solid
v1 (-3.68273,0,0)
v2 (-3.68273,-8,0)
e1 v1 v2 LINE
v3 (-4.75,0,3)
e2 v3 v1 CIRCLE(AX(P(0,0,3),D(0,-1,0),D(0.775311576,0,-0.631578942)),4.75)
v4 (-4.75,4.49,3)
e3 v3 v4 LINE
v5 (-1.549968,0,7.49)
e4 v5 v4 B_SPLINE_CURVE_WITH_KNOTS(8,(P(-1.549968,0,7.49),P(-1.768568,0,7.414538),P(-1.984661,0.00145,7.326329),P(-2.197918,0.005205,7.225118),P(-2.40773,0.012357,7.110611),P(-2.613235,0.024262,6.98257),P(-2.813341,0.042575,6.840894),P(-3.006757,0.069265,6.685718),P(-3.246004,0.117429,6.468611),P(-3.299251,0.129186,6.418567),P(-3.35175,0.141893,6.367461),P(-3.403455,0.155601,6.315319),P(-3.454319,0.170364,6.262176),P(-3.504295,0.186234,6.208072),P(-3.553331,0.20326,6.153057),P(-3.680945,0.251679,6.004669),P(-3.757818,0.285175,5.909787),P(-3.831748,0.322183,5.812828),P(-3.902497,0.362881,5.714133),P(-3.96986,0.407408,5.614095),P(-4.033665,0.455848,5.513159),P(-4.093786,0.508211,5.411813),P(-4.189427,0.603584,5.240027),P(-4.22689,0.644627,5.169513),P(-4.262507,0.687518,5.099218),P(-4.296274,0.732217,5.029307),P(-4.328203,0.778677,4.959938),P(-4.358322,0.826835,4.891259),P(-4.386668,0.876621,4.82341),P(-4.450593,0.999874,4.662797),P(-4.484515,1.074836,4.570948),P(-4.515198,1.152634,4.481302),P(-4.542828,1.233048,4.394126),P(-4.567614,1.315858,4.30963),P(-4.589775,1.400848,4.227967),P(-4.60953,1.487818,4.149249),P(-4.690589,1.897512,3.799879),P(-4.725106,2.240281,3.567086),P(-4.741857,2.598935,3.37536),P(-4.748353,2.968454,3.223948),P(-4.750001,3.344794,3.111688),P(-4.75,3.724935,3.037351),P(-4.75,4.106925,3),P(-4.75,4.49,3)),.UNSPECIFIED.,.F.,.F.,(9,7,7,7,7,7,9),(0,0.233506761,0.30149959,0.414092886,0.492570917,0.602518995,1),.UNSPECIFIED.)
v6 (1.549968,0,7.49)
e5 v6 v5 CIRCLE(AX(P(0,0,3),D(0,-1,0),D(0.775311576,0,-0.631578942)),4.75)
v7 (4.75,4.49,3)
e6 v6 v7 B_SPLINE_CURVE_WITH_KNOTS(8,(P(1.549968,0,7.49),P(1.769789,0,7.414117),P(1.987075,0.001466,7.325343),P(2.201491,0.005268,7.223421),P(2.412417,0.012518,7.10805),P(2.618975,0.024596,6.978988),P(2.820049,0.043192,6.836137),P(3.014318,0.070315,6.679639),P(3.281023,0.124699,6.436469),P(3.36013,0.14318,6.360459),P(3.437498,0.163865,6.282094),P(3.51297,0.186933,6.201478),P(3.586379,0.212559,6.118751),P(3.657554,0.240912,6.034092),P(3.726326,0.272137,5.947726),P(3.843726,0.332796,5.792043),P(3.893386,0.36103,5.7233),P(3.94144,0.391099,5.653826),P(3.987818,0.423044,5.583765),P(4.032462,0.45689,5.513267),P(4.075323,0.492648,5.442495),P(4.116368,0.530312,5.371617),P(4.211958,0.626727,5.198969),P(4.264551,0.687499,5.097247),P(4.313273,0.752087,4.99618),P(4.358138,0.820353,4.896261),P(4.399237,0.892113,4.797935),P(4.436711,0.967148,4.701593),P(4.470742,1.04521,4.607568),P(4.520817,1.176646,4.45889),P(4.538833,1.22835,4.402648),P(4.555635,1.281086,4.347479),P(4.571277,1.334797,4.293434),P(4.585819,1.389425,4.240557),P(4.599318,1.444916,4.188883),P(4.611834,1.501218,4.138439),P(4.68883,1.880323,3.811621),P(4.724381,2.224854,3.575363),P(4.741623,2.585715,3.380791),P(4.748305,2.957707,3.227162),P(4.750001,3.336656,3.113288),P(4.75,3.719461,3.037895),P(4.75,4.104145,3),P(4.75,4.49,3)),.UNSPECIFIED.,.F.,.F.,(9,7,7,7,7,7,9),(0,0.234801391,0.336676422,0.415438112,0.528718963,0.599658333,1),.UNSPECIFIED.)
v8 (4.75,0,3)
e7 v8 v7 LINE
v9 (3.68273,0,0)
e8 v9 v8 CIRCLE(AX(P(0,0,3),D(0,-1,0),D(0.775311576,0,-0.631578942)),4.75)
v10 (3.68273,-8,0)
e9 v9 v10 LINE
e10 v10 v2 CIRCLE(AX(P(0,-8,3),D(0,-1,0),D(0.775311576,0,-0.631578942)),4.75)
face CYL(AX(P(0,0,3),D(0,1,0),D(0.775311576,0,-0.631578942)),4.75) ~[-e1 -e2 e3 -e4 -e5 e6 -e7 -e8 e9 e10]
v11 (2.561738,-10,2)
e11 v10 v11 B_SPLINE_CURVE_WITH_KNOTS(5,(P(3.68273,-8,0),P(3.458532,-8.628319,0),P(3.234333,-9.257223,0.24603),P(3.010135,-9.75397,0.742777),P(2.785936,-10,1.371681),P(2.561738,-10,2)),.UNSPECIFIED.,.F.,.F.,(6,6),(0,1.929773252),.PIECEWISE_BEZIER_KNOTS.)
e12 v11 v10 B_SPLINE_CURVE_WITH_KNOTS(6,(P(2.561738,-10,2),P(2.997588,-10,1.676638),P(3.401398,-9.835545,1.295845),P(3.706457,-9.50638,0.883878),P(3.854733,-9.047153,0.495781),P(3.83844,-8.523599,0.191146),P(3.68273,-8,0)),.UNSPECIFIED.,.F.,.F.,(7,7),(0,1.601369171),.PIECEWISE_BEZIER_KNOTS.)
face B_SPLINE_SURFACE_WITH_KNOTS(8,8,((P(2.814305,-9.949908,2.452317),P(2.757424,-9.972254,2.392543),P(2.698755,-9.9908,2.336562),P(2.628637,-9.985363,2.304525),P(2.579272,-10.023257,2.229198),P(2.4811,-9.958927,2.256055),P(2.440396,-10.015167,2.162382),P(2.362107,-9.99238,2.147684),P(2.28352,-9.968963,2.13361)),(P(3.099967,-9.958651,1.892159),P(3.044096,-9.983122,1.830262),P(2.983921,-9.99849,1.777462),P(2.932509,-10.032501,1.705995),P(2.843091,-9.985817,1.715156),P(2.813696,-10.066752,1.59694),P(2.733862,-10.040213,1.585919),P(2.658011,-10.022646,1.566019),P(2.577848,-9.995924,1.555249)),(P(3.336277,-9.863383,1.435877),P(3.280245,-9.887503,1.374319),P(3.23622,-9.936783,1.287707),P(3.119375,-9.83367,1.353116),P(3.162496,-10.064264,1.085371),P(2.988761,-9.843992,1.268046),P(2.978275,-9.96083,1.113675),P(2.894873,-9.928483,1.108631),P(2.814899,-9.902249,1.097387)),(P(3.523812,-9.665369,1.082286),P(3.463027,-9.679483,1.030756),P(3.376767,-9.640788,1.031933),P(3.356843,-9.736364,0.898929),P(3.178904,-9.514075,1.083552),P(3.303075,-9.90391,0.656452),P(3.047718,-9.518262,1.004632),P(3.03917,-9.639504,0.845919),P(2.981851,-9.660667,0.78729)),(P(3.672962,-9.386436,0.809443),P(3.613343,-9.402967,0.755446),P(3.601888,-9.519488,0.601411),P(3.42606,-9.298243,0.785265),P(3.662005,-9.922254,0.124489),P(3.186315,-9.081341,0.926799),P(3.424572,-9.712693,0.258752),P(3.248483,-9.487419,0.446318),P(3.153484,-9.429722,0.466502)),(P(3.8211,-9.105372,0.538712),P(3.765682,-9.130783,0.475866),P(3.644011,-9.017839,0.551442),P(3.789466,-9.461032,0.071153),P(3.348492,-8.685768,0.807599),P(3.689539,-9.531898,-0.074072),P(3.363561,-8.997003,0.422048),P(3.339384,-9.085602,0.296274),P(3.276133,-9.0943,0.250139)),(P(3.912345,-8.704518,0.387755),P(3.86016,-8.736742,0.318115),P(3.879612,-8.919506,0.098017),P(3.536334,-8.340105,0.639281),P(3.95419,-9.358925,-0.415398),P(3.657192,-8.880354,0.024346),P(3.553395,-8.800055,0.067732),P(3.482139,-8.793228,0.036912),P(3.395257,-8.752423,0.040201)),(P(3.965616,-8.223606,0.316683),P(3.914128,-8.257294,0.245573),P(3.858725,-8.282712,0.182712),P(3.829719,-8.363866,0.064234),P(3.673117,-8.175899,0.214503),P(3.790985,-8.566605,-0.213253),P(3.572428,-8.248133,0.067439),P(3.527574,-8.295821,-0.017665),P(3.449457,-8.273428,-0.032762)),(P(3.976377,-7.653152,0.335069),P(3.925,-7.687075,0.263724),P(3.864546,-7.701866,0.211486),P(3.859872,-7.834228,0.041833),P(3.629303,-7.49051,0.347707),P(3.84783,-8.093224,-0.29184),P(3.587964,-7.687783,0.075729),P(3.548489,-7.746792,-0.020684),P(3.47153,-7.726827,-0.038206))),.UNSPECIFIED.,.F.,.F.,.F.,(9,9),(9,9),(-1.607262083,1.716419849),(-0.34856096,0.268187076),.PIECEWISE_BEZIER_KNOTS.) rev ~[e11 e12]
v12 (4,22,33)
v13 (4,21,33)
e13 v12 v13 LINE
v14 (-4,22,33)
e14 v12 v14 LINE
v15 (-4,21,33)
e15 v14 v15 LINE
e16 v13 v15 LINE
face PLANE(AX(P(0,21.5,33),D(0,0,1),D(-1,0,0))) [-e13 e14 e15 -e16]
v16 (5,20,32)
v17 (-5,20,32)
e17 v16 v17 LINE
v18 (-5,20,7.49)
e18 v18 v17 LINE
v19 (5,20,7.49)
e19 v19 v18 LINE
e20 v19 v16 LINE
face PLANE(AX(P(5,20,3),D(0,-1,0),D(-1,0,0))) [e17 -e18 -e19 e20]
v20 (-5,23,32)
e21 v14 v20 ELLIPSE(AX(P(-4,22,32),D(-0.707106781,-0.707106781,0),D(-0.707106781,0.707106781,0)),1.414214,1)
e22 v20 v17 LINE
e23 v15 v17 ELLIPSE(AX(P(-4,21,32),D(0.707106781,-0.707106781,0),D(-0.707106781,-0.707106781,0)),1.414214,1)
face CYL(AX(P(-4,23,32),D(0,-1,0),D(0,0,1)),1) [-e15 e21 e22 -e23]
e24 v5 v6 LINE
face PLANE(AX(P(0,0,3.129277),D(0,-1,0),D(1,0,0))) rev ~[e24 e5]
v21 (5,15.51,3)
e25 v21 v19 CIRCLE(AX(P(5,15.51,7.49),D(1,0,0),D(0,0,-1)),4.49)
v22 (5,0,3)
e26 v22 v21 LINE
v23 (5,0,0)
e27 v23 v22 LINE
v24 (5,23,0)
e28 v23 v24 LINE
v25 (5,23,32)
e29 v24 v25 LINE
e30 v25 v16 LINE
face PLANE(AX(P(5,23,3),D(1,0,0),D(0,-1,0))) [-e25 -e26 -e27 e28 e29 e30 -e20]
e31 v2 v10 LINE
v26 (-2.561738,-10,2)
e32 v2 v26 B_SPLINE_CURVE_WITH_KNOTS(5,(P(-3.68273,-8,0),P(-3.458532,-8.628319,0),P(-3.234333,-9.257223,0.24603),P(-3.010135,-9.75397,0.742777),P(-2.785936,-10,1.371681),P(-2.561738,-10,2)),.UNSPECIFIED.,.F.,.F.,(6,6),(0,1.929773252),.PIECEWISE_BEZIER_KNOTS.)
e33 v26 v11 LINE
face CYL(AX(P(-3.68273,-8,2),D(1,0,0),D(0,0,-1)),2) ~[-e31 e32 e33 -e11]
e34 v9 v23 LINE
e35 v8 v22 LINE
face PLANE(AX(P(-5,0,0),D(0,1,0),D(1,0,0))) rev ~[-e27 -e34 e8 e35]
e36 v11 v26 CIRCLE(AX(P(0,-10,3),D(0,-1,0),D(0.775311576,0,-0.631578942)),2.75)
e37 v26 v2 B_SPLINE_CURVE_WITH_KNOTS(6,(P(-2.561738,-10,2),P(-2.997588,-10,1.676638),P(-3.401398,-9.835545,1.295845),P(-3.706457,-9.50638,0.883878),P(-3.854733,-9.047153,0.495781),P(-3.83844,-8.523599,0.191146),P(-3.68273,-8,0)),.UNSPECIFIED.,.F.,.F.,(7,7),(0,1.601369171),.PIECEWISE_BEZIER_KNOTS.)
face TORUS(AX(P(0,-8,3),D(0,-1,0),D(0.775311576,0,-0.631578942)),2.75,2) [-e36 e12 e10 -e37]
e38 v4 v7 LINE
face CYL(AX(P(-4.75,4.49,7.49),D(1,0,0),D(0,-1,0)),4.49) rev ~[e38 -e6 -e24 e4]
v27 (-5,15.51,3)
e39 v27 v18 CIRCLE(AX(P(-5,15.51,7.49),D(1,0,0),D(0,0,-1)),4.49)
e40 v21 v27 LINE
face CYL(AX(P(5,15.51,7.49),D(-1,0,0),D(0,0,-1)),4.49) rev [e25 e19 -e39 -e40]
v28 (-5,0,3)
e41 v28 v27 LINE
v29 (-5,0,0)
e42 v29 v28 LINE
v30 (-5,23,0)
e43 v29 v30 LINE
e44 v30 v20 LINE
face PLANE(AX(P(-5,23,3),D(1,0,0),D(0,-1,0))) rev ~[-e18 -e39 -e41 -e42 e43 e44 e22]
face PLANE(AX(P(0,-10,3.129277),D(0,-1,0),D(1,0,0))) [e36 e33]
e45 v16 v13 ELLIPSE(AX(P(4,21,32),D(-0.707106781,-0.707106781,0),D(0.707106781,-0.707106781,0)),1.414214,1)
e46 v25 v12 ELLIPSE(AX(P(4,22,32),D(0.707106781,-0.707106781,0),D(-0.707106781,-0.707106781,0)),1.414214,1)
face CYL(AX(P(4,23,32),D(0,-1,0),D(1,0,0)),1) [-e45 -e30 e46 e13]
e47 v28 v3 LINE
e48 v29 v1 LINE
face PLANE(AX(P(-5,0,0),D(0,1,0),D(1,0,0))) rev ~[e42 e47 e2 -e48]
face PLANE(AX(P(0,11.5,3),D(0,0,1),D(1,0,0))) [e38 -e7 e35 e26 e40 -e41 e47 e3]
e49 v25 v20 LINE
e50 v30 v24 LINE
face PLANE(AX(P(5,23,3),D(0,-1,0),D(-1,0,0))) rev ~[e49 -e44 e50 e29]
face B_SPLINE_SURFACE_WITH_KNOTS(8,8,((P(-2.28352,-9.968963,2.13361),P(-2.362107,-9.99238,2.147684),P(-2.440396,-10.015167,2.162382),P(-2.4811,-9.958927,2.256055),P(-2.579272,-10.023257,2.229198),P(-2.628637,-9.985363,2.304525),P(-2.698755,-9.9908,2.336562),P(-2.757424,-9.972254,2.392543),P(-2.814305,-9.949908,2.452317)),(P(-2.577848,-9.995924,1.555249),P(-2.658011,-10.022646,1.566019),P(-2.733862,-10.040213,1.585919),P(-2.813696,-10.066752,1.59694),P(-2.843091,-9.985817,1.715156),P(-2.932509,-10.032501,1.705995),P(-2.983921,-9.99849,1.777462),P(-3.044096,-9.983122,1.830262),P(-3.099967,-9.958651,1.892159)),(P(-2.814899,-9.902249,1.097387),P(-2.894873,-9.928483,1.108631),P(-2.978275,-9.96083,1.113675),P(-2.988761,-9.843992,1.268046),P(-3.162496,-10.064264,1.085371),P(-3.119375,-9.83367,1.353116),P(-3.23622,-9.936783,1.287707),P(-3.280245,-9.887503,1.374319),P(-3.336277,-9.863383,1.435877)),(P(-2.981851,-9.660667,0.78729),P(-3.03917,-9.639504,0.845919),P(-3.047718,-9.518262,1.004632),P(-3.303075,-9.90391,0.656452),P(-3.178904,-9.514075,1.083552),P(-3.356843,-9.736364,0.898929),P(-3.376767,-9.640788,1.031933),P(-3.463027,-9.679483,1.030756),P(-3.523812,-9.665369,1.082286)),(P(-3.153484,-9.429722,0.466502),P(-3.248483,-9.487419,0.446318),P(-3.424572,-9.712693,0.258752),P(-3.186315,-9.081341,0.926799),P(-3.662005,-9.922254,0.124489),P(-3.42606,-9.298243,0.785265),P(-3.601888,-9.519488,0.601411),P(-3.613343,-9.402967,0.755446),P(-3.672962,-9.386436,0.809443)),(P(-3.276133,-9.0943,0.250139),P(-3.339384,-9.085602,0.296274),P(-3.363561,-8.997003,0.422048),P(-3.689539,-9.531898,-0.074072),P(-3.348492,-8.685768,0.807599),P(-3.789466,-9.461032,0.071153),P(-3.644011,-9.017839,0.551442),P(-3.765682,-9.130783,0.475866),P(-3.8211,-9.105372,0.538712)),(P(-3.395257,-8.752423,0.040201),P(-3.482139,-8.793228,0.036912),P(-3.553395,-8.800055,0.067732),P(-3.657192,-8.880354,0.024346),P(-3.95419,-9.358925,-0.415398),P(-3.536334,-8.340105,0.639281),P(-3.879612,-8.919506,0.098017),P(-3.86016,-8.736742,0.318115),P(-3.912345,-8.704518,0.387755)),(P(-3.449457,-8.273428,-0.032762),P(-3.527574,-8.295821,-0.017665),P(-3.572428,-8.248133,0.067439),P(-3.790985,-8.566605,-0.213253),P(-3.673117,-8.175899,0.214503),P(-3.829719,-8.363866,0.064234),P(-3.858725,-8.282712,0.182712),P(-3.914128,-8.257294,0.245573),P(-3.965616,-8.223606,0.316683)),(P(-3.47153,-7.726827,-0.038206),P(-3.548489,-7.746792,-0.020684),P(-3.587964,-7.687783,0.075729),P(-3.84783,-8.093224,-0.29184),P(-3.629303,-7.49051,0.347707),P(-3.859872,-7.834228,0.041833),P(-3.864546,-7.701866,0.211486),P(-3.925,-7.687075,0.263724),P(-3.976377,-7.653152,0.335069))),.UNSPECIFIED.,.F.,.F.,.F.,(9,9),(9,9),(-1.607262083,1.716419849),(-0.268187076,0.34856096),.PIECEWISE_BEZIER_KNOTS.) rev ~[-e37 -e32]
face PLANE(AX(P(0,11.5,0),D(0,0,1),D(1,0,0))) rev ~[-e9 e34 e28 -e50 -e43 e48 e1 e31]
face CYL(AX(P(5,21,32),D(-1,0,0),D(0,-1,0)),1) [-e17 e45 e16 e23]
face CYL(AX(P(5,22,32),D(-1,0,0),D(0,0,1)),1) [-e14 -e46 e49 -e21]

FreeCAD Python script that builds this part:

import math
import FreeCAD as App
import Part
import Sketcher
from FreeCAD import Vector
Q = App.Units.Quantity


def edges_at(feature, points):
    """Names of the edges that pass closest to the given points."""
    edges = feature.Shape.Edges
    near = lambda p: min(range(len(edges)), key=lambda i: edges[i].distToShape(Part.Vertex(*p))[0])
    return sorted({f"Edge{near(p) + 1}" for p in points})

doc = App.newDocument("Part")
body = doc.addObject("PartDesign::Body", "Body")

# Sketch on XZ plane
sketch1 = body.newObject("Sketcher::SketchObject", "Sketch")
sketch1.AttachmentSupport = (doc.getObject("XZ_Plane"), [""])
sketch1.MapMode = "FlatFace"
sketch1.addGeometry([
    Part.ArcOfCircle(Part.Circle(Vector(0, 3, 0), Vector(0, 0, 1), 4.8), math.radians(-39), math.radians(219)),
    Part.LineSegment(Vector(-3.7, 0, 0), Vector(3.7, 0, 0)),
], False)
sketch1.addConstraint([
    Sketcher.Constraint("Coincident", 0, 1, 1, 2),
    Sketcher.Constraint("Coincident", 1, 1, 0, 2),
    Sketcher.Constraint("Horizontal", 1),
    Sketcher.Constraint("Symmetric", 0, 1, 1, 1, -1, 1),
    Sketcher.Constraint("Radius", 0, Q("4.75 mm")),
    Sketcher.Constraint("DistanceY", -1, 1, 0, 3, Q("3 mm")),
])
pad1 = body.newObject("PartDesign::Pad", "Pad")
pad1.Profile = sketch1
pad1.Length = 10

# Sketch on XY plane
sketch2 = body.newObject("Sketcher::SketchObject", "Sketch001")
sketch2.AttachmentSupport = (doc.getObject("XY_Plane"), [""])
sketch2.MapMode = "FlatFace"
sketch2.addGeometry([
    Part.LineSegment(Vector(-5, 23, 0), Vector(-5, 0, 0)),
    Part.LineSegment(Vector(-5, 0, 0), Vector(5, 0, 0)),
    Part.LineSegment(Vector(5, 0, 0), Vector(5, 23, 0)),
    Part.LineSegment(Vector(5, 23, 0), Vector(-5, 23, 0)),
], False)
sketch2.addConstraint([
    Sketcher.Constraint("Coincident", 0, 2, 1, 1),
    Sketcher.Constraint("Coincident", 1, 2, 2, 1),
    Sketcher.Constraint("Coincident", 2, 2, 3, 1),
    Sketcher.Constraint("Coincident", 3, 2, 0, 1),
    Sketcher.Constraint("Vertical", 0),
    Sketcher.Constraint("Horizontal", 1),
    Sketcher.Constraint("Vertical", 2),
    Sketcher.Constraint("Horizontal", 3),
    Sketcher.Constraint("Symmetric", 0, 2, 1, 2, -1, 1),
    Sketcher.Constraint("DistanceX", 1, 1, 1, 2, Q("10 mm")),
    Sketcher.Constraint("DistanceY", 0, 2, 0, 1, Q("23 mm")),
])
pad2 = body.newObject("PartDesign::Pad", "Pad001")
pad2.Profile = sketch2
pad2.Length = 3

# Sketch on XY plane
sketch3 = body.newObject("Sketcher::SketchObject", "Sketch002")
sketch3.AttachmentSupport = (doc.getObject("XY_Plane"), [""])
sketch3.MapMode = "FlatFace"
sketch3.AttachmentOffset = App.Placement(Vector(0, 0, 3), App.Rotation())
sketch3.addGeometry([
    Part.LineSegment(Vector(5, 20, 0), Vector(5, 23, 0)),
    Part.LineSegment(Vector(5, 23, 0), Vector(-5, 23, 0)),
    Part.LineSegment(Vector(-5, 23, 0), Vector(-5, 20, 0)),
    Part.LineSegment(Vector(-5, 20, 0), Vector(5, 20, 0)),
], False)
sketch3.addConstraint([
    Sketcher.Constraint("Coincident", 0, 2, 1, 1),
    Sketcher.Constraint("Coincident", 1, 2, 2, 1),
    Sketcher.Constraint("Coincident", 2, 2, 3, 1),
    Sketcher.Constraint("Coincident", 3, 2, 0, 1),
    Sketcher.Constraint("Vertical", 0),
    Sketcher.Constraint("Horizontal", 1),
    Sketcher.Constraint("Vertical", 2),
    Sketcher.Constraint("Horizontal", 3),
    Sketcher.Constraint("DistanceX", 1, 2, 1, 1, Q("10 mm")),
    Sketcher.Constraint("DistanceY", 0, 1, 0, 2, Q("3 mm")),
    Sketcher.Constraint("DistanceX", -1, 1, 0, 2, Q("5 mm")),
    Sketcher.Constraint("DistanceY", -1, 1, 0, 2, Q("23 mm")),
])
pad3 = body.newObject("PartDesign::Pad", "Pad002")
pad3.Profile = sketch3
pad3.Length = 30
doc.recompute()

fillet = body.newObject("PartDesign::Fillet", "Fillet")
fillet.Base = (pad3, edges_at(pad3, [(0, 20, 3), (0, 0, 3)]))
fillet.Radius = 4.49
doc.recompute()

fillet2 = body.newObject("PartDesign::Fillet", "Fillet001")
fillet2.Base = (fillet, edges_at(fillet, [
    (5, 21.5, 33),
    (0, 23, 33),
    (-5, 21.5, 33),
    (0, 20, 33),
]))
fillet2.Radius = 1
doc.recompute()

fillet3 = body.newObject("PartDesign::Fillet", "Fillet002")
fillet3.Base = (fillet2, edges_at(fillet2, [(0, -10, 0), (0, -10, 7.75)]))
fillet3.Radius = 2

doc.recompute()
